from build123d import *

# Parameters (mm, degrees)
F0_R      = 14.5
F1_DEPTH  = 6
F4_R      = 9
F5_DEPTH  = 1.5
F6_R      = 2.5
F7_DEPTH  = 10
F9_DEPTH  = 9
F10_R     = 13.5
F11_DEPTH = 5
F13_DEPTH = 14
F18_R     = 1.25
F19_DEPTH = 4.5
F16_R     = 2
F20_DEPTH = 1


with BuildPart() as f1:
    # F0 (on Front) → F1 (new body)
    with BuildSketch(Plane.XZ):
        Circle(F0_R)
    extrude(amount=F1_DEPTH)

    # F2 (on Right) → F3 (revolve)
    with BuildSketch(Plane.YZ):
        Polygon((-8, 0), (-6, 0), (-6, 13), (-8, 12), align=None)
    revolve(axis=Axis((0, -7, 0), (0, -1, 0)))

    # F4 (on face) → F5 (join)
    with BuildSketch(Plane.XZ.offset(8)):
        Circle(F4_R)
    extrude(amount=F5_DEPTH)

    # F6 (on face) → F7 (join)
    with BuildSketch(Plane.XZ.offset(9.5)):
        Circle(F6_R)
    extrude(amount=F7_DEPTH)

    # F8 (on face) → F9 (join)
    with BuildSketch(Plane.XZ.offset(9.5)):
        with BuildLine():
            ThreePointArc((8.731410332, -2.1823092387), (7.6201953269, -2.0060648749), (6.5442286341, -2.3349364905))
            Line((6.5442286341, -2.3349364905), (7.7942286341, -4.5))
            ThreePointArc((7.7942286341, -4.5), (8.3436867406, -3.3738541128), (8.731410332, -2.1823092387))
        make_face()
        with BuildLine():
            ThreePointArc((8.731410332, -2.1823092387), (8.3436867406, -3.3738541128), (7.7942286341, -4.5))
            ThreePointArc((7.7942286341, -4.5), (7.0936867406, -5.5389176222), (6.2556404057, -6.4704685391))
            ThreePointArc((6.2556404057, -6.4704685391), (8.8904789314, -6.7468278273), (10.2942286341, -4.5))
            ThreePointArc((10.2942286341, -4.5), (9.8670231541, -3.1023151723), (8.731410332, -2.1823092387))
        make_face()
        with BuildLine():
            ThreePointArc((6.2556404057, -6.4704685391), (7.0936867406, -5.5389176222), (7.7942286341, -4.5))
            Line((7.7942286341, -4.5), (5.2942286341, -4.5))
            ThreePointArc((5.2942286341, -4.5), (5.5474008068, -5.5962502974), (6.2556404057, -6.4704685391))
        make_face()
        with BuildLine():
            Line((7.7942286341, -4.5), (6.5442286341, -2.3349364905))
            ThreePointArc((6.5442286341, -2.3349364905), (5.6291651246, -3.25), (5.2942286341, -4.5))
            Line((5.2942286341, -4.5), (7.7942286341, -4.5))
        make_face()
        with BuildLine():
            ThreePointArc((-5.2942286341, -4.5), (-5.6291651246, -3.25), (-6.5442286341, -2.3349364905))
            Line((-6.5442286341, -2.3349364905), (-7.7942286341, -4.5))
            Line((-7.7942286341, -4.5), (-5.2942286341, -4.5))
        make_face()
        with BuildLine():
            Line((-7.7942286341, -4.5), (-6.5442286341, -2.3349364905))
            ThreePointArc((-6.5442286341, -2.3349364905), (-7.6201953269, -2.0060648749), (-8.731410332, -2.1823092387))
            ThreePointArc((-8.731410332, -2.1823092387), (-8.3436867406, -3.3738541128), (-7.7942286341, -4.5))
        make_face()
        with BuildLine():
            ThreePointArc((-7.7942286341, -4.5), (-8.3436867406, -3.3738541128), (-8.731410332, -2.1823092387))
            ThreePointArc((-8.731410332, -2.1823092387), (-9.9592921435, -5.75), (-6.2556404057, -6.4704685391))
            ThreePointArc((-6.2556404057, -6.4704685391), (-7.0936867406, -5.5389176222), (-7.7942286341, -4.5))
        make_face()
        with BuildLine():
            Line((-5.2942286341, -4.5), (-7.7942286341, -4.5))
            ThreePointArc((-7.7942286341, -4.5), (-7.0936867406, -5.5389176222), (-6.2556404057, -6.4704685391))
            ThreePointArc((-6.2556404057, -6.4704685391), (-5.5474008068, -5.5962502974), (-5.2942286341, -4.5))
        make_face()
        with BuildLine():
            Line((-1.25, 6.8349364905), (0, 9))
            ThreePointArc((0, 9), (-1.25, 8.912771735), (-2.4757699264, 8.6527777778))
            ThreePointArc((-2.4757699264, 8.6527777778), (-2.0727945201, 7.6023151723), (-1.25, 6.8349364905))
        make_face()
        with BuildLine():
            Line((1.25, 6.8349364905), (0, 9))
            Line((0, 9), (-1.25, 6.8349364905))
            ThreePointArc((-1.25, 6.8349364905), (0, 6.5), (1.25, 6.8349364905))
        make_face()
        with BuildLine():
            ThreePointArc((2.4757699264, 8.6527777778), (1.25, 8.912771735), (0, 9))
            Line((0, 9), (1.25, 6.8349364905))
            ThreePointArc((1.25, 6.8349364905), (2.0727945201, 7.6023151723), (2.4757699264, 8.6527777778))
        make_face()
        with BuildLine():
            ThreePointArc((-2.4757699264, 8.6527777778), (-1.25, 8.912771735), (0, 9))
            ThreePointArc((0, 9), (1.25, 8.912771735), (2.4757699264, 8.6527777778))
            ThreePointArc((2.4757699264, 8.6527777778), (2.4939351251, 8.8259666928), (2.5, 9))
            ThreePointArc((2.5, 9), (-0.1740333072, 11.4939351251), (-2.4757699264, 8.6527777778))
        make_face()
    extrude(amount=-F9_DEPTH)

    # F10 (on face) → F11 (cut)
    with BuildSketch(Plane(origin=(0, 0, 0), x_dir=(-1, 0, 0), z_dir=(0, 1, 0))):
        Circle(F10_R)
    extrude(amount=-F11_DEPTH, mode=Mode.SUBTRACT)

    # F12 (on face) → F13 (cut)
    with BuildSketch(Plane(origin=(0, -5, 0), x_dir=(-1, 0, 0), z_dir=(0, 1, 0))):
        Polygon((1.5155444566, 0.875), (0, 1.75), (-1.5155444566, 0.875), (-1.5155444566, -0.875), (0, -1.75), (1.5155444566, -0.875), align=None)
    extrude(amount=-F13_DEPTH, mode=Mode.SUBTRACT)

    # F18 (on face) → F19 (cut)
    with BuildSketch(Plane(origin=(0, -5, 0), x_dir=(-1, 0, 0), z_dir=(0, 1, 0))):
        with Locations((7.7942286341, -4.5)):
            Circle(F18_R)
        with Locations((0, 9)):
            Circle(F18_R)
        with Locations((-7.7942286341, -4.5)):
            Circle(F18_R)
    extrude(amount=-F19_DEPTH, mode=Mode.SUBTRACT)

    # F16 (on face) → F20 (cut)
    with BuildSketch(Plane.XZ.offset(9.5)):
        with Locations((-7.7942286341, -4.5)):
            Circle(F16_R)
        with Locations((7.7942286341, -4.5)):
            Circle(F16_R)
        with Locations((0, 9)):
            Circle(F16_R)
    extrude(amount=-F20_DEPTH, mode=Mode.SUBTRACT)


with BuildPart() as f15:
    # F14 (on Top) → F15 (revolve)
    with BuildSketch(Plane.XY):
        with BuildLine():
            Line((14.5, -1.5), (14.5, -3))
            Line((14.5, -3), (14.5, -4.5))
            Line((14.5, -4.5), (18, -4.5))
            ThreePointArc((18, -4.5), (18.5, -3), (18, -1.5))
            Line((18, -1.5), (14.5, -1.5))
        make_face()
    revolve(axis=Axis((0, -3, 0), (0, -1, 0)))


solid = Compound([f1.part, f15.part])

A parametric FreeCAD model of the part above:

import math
import FreeCAD as App
import Part
import Sketcher

V = App.Vector
Q = App.Units.Quantity


def add_polygon(sketch, points):
    """Adds a closed chain of lines whose ends are joined by coincident constraints."""
    first, n = sketch.GeometryCount, len(points)
    for a, b in zip(points, points[1:] + points[:1]):
        sketch.addGeometry(Part.LineSegment(App.Vector(*a, 0), App.Vector(*b, 0)), False)
    for i in range(n):
        sketch.addConstraint(Sketcher.Constraint("Coincident", first + i, 2, first + (i + 1) % n, 1))

doc = App.newDocument("Part")
body = doc.addObject("PartDesign::Body", "Body")

# Sketch on XZ plane
sketch1 = body.newObject("Sketcher::SketchObject", "Sketch")
sketch1.AttachmentSupport = (doc.getObject("XZ_Plane"), [""])
sketch1.MapMode = "FlatFace"
sketch1.addGeometry(Part.Circle(V(0, 0, 0), V(0, 0, 1), 14), False)
sketch1.addConstraint([
    Sketcher.Constraint("Coincident", 0, 3, -1, 1),
    Sketcher.Constraint("Diameter", 0, Q("29 mm")),
])
pad1 = body.newObject("PartDesign::Pad", "Pad")
pad1.Profile = sketch1
pad1.Length = 6

# Sketch on YZ plane
sketch2 = body.newObject("Sketcher::SketchObject", "Sketch001")
sketch2.AttachmentSupport = (doc.getObject("YZ_Plane"), [""])
sketch2.MapMode = "FlatFace"
add_polygon(sketch2, [(-8, 0), (-6, 0), (-6, 13), (-8, 12)])  # lines 0-3
sketch2.addConstraint([
    Sketcher.Constraint("Horizontal", 0),
    Sketcher.Constraint("Vertical", 1),
    Sketcher.Constraint("Vertical", 3),
    Sketcher.Constraint("PointOnObject", 0, 2, -1),
    Sketcher.Constraint("DistanceX", 0, 1, 0, 2, Q("2 mm")),
    Sketcher.Constraint("DistanceY", 1, 1, 1, 2, Q("13 mm")),
    Sketcher.Constraint("DistanceY", 3, 2, 3, 1, Q("12 mm")),
    Sketcher.Constraint("DistanceX", 0, 2, -1, 1, Q("6 mm")),
])
revolution = body.newObject("PartDesign::Revolution", "Revolution")
revolution.Profile = sketch2
revolution.ReferenceAxis = (sketch2, ["H_Axis"])
revolution.Angle = 360

# Sketch on XZ plane
sketch3 = body.newObject("Sketcher::SketchObject", "Sketch002")
sketch3.AttachmentSupport = (doc.getObject("XZ_Plane"), [""])
sketch3.MapMode = "FlatFace"
sketch3.AttachmentOffset = App.Placement(V(0, 0, 8), App.Rotation())
sketch3.addGeometry(Part.Circle(V(0, 0, 0), V(0, 0, 1), 9), False)
sketch3.addConstraint([
    Sketcher.Constraint("Coincident", 0, 3, -1, 1),
    Sketcher.Constraint("Diameter", 0, Q("18 mm")),
])
pad2 = body.newObject("PartDesign::Pad", "Pad001")
pad2.Profile = sketch3
pad2.Length = 1.5

# Sketch on XZ plane
sketch4 = body.newObject("Sketcher::SketchObject", "Sketch003")
sketch4.AttachmentSupport = (doc.getObject("XZ_Plane"), [""])
sketch4.MapMode = "FlatFace"
sketch4.AttachmentOffset = App.Placement(V(0, 0, 9.5), App.Rotation())
sketch4.addGeometry(Part.Circle(V(0, 0, 0), V(0, 0, 1), 2.5), False)
sketch4.addConstraint([
    Sketcher.Constraint("Coincident", 0, 3, -1, 1),
    Sketcher.Constraint("Diameter", 0, Q("5 mm")),
])
pad3 = body.newObject("PartDesign::Pad", "Pad002")
pad3.Profile = sketch4
pad3.Length = 10

# Sketch on XZ plane
sketch5 = body.newObject("Sketcher::SketchObject", "Sketch004")
sketch5.AttachmentSupport = (doc.getObject("XZ_Plane"), [""])
sketch5.MapMode = "FlatFace"
sketch5.AttachmentOffset = App.Placement(V(0, 0, 9.5), App.Rotation())
sketch5.addGeometry([
    Part.ArcOfCircle(Part.Circle(V(7.79, -4.5, 0), V(0, 0, 1), 2.5), math.radians(68), math.radians(120)),  # 0
    Part.ArcOfCircle(Part.Circle(V(7.79, -4.5, 0), V(0, 0, 1), 2.5), math.radians(120), math.radians(180)),  # 1
    Part.ArcOfCircle(Part.Circle(V(7.79, -4.5, 0), V(0, 0, 1), 2.5), math.radians(180), math.radians(232)),  # 2
    Part.ArcOfCircle(Part.Circle(V(7.79, -4.5, 0), V(0, 0, 1), 2.5), math.radians(-128), math.radians(0)),  # 3
    Part.ArcOfCircle(Part.Circle(V(7.79, -4.5, 0), V(0, 0, 1), 2.5), math.radians(0), math.radians(68)),  # 4
    Part.ArcOfCircle(Part.Circle(V(-7.79, -4.5, 0), V(0, 0, 1), 2.5), math.radians(0), math.radians(60)),  # 5
    Part.ArcOfCircle(Part.Circle(V(-7.79, -4.5, 0), V(0, 0, 1), 2.5), math.radians(60), math.radians(112)),  # 6
    Part.ArcOfCircle(Part.Circle(V(-7.79, -4.5, 0), V(0, 0, 1), 2.5), math.radians(112), math.radians(308)),  # 7
    Part.ArcOfCircle(Part.Circle(V(-7.79, -4.5, 0), V(0, 0, 1), 2.5), math.radians(-52), math.radians(0)),  # 8
    Part.ArcOfCircle(Part.Circle(V(0, 9, 0), V(0, 0, 1), 2.5), math.radians(-172), math.radians(-120)),  # 9
    Part.ArcOfCircle(Part.Circle(V(0, 9, 0), V(0, 0, 1), 2.5), math.radians(-120), math.radians(-60)),  # 10
    Part.ArcOfCircle(Part.Circle(V(0, 9, 0), V(0, 0, 1), 2.5), math.radians(-60), math.radians(-8)),  # 11
    Part.ArcOfCircle(Part.Circle(V(0, 9, 0), V(0, 0, 1), 2.5), math.radians(-7.98), math.radians(0)),  # 12
    Part.ArcOfCircle(Part.Circle(V(0, 9, 0), V(0, 0, 1), 2.5), math.radians(0), math.radians(188)),  # 13
], False)
sketch5.addConstraint([
    Sketcher.Constraint("Tangent", 0, 2, 1, 1),
    Sketcher.Constraint("Tangent", 1, 2, 2, 1),
    Sketcher.Constraint("Tangent", 2, 2, 3, 1),
    Sketcher.Constraint("Tangent", 3, 2, 4, 1),
    Sketcher.Constraint("Tangent", 4, 2, 0, 1),
    Sketcher.Constraint("Tangent", 5, 2, 6, 1),
    Sketcher.Constraint("Tangent", 6, 2, 7, 1),
    Sketcher.Constraint("Tangent", 7, 2, 8, 1),
    Sketcher.Constraint("Tangent", 8, 2, 5, 1),
    Sketcher.Constraint("Tangent", 9, 2, 10, 1),
    Sketcher.Constraint("Tangent", 10, 2, 11, 1),
    Sketcher.Constraint("Tangent", 11, 2, 12, 1),
    Sketcher.Constraint("Tangent", 12, 2, 13, 1),
    Sketcher.Constraint("Tangent", 13, 2, 9, 1),
    Sketcher.Constraint("Coincident", 2, 3, 0, 3),
    Sketcher.Constraint("Coincident", 11, 3, 9, 3),
    Sketcher.Constraint("Equal", 4, 5),
    Sketcher.Constraint("Equal", 5, 6),
    Sketcher.Constraint("Equal", 8, 9),
    Sketcher.Constraint("Symmetric", 0, 3, 5, 3, -2),
    Sketcher.Constraint("Symmetric", 9, 2, 10, 2, -2),
    Sketcher.Constraint("Horizontal", 8, 3, 1, 2),
    Sketcher.Constraint("Horizontal", 1, 2, 3, 2),
    Sketcher.Constraint("Horizontal", 0, 2, 5, 2),
    Sketcher.Constraint("Horizontal", 4, 2, 6, 2),
    Sketcher.Constraint("Horizontal", 2, 2, 7, 2),
    Sketcher.Constraint("Horizontal", 3, 2, 8, 2),
    Sketcher.Constraint("Horizontal", 13, 3, 12, 2),
    Sketcher.Constraint("Horizontal", 11, 2, 13, 2),
    Sketcher.Constraint("Radius", 0, Q("2.5 mm")),
    Sketcher.Constraint("DistanceY", -1, 1, 9, 3, Q("9 mm")),
    Sketcher.Constraint("DistanceY", 0, 3, -1, 1, Q("4.5 mm")),
    Sketcher.Constraint("DistanceX", 9, 2, 10, 2, Q("2.5 mm")),
    Sketcher.Constraint("DistanceX", 0, 2, 0, 3, Q("1.25 mm")),
    Sketcher.Constraint("DistanceX", -1, 1, 0, 3, Q("7.794229 mm")),
    Sketcher.Constraint("DistanceX", -1, 1, 2, 2, Q("6.25564 mm")),
    Sketcher.Constraint("DistanceX", -1, 1, 4, 2, Q("8.73141 mm")),
    Sketcher.Constraint("DistanceX", -1, 1, 11, 2, Q("2.47577 mm")),
])
pad4 = body.newObject("PartDesign::Pad", "Pad003")
pad4.Profile = sketch5
pad4.Length = 9
pad4.Reversed = True

# Sketch on XZ plane
sketch6 = body.newObject("Sketcher::SketchObject", "Sketch005")
sketch6.AttachmentSupport = (doc.getObject("XZ_Plane"), [""])
sketch6.MapMode = "FlatFace"
sketch6.addGeometry(Part.Circle(V(0, 0, 0), V(0, 0, 1), 14), False)
sketch6.addConstraint([
    Sketcher.Constraint("Coincident", 0, 3, -1, 1),
    Sketcher.Constraint("Diameter", 0, Q("27 mm")),
])
pocket1 = body.newObject("PartDesign::Pocket", "Pocket")
pocket1.Profile = sketch6
pocket1.Length = 5
pocket1.Reversed = True

# Sketch on XZ plane
sketch7 = body.newObject("Sketcher::SketchObject", "Sketch006")
sketch7.AttachmentSupport = (doc.getObject("XZ_Plane"), [""])
sketch7.MapMode = "FlatFace"
sketch7.AttachmentOffset = App.Placement(V(0, 0, 5), App.Rotation())
add_polygon(sketch7, [(-1.5, 0.9), (0, 1.8), (1.5, 0.9), (1.5, -0.9), (0, -1.8), (-1.5, -0.9)])  # lines 0-5
sketch7.addConstraint([
    Sketcher.Constraint("Vertical", 2),
    Sketcher.Constraint("Vertical", 5),
    Sketcher.Constraint("Symmetric", 0, 2, 3, 2, -1, 1),
    Sketcher.Constraint("Symmetric", 1, 2, 4, 2, -1, 1),
    Sketcher.Constraint("PointOnObject", 0, 2, -2),
    Sketcher.Constraint("Parallel", 0, 3),
    Sketcher.Constraint("Horizontal", 2, 2, 4, 2),
    Sketcher.Constraint("Angle", 0, Q("30 deg")),
    Sketcher.Constraint("DistanceY", 2, 2, 2, 1, Q("1.75 mm")),
    Sketcher.Constraint("DistanceY", 3, 2, 0, 2, Q("3.5 mm")),
])
pocket2 = body.newObject("PartDesign::Pocket", "Pocket001")
pocket2.Profile = sketch7
pocket2.Length = 14
pocket2.Reversed = True

# Sketch on XZ plane
sketch8 = body.newObject("Sketcher::SketchObject", "Sketch007")
sketch8.AttachmentSupport = (doc.getObject("XZ_Plane"), [""])
sketch8.MapMode = "FlatFace"
sketch8.AttachmentOffset = App.Placement(V(0, 0, 5), App.Rotation())
sketch8.addGeometry([
    Part.Circle(V(-7.8, -4.5, 0), V(0, 0, 1), 1.2),
    Part.Circle(V(0, 9, 0), V(0, 0, 1), 1.2),
    Part.Circle(V(7.8, -4.5, 0), V(0, 0, 1), 1.2),
], False)
sketch8.addConstraint([
    Sketcher.Constraint("Equal", 0, 1),
    Sketcher.Constraint("Equal", 1, 2),
    Sketcher.Constraint("Symmetric", 0, 3, 2, 3, -2),
    Sketcher.Constraint("PointOnObject", 1, 3, -2),
    Sketcher.Constraint("Diameter", 0, Q("2.5 mm")),
    Sketcher.Constraint("DistanceY", -1, 1, 1, 3, Q("9 mm")),
    Sketcher.Constraint("DistanceY", 0, 3, -1, 1, Q("4.5 mm")),
    Sketcher.Constraint("DistanceX", 0, 3, -1, 1, Q("7.794229 mm")),
])
pocket3 = body.newObject("PartDesign::Pocket", "Pocket002")
pocket3.Profile = sketch8
pocket3.Length = 4.5
pocket3.Reversed = True

# Sketch on XZ plane
sketch9 = body.newObject("Sketcher::SketchObject", "Sketch008")
sketch9.AttachmentSupport = (doc.getObject("XZ_Plane"), [""])
sketch9.MapMode = "FlatFace"
sketch9.AttachmentOffset = App.Placement(V(0, 0, 9.5), App.Rotation())
sketch9.addGeometry([
    Part.Circle(V(-7.8, -4.5, 0), V(0, 0, 1), 2),
    Part.Circle(V(7.8, -4.5, 0), V(0, 0, 1), 2),
    Part.Circle(V(0, 9, 0), V(0, 0, 1), 2),
], False)
sketch9.addConstraint([
    Sketcher.Constraint("Equal", 0, 1),
    Sketcher.Constraint("Equal", 1, 2),
    Sketcher.Constraint("Symmetric", 0, 3, 1, 3, -2),
    Sketcher.Constraint("PointOnObject", 2, 3, -2),
    Sketcher.Constraint("Diameter", 0, Q("4 mm")),
    Sketcher.Constraint("DistanceY", -1, 1, 2, 3, Q("9 mm")),
    Sketcher.Constraint("DistanceY", 0, 3, -1, 1, Q("4.5 mm")),
    Sketcher.Constraint("DistanceX", 0, 3, -1, 1, Q("7.794229 mm")),
])
pocket4 = body.newObject("PartDesign::Pocket", "Pocket003")
pocket4.Profile = sketch9
pocket4.Length = 1
body2 = doc.addObject("PartDesign::Body", "Body001")

# Sketch on XY plane
sketch10 = body2.newObject("Sketcher::SketchObject", "Sketch009")
sketch10.AttachmentSupport = (doc.getObject("XY_Plane001"), [""])
sketch10.MapMode = "FlatFace"
sketch10.addGeometry([
    Part.LineSegment(V(14.5, -1.5, 0), V(14.5, -4.5, 0)),
    Part.LineSegment(V(14.5, -4.5, 0), V(18, -4.5, 0)),
    Part.ArcOfCircle(Part.Circle(V(16, -3, 0), V(0, 0, 1), 2.5), math.radians(-37), math.radians(37)),
    Part.LineSegment(V(18, -1.5, 0), V(14.5, -1.5, 0)),
], False)
sketch10.addConstraint([
    Sketcher.Constraint("Coincident", 0, 2, 1, 1),
    Sketcher.Constraint("Coincident", 1, 2, 2, 1),
    Sketcher.Constraint("Coincident", 2, 2, 3, 1),
    Sketcher.Constraint("Coincident", 3, 2, 0, 1),
    Sketcher.Constraint("Vertical", 0),
    Sketcher.Constraint("Horizontal", 1),
    Sketcher.Constraint("Horizontal", 3),
    Sketcher.Constraint("Vertical", 1, 2, 2, 2),
    Sketcher.Constraint("Radius", 2, Q("2.5 mm")),
    Sketcher.Constraint("DistanceY", 0, 2, 0, 1, Q("3 mm")),
    Sketcher.Constraint("DistanceX", 1, 1, 1, 2, Q("3.5 mm")),
    Sketcher.Constraint("DistanceX", -1, 1, 2, 3, Q("16 mm")),
    Sketcher.Constraint("DistanceY", 2, 3, -1, 1, Q("3 mm")),
])
revolution2 = body2.newObject("PartDesign::Revolution", "Revolution001")
revolution2.Profile = sketch10
revolution2.ReferenceAxis = (sketch10, ["V_Axis"])
revolution2.Angle = 360

doc.recompute()
